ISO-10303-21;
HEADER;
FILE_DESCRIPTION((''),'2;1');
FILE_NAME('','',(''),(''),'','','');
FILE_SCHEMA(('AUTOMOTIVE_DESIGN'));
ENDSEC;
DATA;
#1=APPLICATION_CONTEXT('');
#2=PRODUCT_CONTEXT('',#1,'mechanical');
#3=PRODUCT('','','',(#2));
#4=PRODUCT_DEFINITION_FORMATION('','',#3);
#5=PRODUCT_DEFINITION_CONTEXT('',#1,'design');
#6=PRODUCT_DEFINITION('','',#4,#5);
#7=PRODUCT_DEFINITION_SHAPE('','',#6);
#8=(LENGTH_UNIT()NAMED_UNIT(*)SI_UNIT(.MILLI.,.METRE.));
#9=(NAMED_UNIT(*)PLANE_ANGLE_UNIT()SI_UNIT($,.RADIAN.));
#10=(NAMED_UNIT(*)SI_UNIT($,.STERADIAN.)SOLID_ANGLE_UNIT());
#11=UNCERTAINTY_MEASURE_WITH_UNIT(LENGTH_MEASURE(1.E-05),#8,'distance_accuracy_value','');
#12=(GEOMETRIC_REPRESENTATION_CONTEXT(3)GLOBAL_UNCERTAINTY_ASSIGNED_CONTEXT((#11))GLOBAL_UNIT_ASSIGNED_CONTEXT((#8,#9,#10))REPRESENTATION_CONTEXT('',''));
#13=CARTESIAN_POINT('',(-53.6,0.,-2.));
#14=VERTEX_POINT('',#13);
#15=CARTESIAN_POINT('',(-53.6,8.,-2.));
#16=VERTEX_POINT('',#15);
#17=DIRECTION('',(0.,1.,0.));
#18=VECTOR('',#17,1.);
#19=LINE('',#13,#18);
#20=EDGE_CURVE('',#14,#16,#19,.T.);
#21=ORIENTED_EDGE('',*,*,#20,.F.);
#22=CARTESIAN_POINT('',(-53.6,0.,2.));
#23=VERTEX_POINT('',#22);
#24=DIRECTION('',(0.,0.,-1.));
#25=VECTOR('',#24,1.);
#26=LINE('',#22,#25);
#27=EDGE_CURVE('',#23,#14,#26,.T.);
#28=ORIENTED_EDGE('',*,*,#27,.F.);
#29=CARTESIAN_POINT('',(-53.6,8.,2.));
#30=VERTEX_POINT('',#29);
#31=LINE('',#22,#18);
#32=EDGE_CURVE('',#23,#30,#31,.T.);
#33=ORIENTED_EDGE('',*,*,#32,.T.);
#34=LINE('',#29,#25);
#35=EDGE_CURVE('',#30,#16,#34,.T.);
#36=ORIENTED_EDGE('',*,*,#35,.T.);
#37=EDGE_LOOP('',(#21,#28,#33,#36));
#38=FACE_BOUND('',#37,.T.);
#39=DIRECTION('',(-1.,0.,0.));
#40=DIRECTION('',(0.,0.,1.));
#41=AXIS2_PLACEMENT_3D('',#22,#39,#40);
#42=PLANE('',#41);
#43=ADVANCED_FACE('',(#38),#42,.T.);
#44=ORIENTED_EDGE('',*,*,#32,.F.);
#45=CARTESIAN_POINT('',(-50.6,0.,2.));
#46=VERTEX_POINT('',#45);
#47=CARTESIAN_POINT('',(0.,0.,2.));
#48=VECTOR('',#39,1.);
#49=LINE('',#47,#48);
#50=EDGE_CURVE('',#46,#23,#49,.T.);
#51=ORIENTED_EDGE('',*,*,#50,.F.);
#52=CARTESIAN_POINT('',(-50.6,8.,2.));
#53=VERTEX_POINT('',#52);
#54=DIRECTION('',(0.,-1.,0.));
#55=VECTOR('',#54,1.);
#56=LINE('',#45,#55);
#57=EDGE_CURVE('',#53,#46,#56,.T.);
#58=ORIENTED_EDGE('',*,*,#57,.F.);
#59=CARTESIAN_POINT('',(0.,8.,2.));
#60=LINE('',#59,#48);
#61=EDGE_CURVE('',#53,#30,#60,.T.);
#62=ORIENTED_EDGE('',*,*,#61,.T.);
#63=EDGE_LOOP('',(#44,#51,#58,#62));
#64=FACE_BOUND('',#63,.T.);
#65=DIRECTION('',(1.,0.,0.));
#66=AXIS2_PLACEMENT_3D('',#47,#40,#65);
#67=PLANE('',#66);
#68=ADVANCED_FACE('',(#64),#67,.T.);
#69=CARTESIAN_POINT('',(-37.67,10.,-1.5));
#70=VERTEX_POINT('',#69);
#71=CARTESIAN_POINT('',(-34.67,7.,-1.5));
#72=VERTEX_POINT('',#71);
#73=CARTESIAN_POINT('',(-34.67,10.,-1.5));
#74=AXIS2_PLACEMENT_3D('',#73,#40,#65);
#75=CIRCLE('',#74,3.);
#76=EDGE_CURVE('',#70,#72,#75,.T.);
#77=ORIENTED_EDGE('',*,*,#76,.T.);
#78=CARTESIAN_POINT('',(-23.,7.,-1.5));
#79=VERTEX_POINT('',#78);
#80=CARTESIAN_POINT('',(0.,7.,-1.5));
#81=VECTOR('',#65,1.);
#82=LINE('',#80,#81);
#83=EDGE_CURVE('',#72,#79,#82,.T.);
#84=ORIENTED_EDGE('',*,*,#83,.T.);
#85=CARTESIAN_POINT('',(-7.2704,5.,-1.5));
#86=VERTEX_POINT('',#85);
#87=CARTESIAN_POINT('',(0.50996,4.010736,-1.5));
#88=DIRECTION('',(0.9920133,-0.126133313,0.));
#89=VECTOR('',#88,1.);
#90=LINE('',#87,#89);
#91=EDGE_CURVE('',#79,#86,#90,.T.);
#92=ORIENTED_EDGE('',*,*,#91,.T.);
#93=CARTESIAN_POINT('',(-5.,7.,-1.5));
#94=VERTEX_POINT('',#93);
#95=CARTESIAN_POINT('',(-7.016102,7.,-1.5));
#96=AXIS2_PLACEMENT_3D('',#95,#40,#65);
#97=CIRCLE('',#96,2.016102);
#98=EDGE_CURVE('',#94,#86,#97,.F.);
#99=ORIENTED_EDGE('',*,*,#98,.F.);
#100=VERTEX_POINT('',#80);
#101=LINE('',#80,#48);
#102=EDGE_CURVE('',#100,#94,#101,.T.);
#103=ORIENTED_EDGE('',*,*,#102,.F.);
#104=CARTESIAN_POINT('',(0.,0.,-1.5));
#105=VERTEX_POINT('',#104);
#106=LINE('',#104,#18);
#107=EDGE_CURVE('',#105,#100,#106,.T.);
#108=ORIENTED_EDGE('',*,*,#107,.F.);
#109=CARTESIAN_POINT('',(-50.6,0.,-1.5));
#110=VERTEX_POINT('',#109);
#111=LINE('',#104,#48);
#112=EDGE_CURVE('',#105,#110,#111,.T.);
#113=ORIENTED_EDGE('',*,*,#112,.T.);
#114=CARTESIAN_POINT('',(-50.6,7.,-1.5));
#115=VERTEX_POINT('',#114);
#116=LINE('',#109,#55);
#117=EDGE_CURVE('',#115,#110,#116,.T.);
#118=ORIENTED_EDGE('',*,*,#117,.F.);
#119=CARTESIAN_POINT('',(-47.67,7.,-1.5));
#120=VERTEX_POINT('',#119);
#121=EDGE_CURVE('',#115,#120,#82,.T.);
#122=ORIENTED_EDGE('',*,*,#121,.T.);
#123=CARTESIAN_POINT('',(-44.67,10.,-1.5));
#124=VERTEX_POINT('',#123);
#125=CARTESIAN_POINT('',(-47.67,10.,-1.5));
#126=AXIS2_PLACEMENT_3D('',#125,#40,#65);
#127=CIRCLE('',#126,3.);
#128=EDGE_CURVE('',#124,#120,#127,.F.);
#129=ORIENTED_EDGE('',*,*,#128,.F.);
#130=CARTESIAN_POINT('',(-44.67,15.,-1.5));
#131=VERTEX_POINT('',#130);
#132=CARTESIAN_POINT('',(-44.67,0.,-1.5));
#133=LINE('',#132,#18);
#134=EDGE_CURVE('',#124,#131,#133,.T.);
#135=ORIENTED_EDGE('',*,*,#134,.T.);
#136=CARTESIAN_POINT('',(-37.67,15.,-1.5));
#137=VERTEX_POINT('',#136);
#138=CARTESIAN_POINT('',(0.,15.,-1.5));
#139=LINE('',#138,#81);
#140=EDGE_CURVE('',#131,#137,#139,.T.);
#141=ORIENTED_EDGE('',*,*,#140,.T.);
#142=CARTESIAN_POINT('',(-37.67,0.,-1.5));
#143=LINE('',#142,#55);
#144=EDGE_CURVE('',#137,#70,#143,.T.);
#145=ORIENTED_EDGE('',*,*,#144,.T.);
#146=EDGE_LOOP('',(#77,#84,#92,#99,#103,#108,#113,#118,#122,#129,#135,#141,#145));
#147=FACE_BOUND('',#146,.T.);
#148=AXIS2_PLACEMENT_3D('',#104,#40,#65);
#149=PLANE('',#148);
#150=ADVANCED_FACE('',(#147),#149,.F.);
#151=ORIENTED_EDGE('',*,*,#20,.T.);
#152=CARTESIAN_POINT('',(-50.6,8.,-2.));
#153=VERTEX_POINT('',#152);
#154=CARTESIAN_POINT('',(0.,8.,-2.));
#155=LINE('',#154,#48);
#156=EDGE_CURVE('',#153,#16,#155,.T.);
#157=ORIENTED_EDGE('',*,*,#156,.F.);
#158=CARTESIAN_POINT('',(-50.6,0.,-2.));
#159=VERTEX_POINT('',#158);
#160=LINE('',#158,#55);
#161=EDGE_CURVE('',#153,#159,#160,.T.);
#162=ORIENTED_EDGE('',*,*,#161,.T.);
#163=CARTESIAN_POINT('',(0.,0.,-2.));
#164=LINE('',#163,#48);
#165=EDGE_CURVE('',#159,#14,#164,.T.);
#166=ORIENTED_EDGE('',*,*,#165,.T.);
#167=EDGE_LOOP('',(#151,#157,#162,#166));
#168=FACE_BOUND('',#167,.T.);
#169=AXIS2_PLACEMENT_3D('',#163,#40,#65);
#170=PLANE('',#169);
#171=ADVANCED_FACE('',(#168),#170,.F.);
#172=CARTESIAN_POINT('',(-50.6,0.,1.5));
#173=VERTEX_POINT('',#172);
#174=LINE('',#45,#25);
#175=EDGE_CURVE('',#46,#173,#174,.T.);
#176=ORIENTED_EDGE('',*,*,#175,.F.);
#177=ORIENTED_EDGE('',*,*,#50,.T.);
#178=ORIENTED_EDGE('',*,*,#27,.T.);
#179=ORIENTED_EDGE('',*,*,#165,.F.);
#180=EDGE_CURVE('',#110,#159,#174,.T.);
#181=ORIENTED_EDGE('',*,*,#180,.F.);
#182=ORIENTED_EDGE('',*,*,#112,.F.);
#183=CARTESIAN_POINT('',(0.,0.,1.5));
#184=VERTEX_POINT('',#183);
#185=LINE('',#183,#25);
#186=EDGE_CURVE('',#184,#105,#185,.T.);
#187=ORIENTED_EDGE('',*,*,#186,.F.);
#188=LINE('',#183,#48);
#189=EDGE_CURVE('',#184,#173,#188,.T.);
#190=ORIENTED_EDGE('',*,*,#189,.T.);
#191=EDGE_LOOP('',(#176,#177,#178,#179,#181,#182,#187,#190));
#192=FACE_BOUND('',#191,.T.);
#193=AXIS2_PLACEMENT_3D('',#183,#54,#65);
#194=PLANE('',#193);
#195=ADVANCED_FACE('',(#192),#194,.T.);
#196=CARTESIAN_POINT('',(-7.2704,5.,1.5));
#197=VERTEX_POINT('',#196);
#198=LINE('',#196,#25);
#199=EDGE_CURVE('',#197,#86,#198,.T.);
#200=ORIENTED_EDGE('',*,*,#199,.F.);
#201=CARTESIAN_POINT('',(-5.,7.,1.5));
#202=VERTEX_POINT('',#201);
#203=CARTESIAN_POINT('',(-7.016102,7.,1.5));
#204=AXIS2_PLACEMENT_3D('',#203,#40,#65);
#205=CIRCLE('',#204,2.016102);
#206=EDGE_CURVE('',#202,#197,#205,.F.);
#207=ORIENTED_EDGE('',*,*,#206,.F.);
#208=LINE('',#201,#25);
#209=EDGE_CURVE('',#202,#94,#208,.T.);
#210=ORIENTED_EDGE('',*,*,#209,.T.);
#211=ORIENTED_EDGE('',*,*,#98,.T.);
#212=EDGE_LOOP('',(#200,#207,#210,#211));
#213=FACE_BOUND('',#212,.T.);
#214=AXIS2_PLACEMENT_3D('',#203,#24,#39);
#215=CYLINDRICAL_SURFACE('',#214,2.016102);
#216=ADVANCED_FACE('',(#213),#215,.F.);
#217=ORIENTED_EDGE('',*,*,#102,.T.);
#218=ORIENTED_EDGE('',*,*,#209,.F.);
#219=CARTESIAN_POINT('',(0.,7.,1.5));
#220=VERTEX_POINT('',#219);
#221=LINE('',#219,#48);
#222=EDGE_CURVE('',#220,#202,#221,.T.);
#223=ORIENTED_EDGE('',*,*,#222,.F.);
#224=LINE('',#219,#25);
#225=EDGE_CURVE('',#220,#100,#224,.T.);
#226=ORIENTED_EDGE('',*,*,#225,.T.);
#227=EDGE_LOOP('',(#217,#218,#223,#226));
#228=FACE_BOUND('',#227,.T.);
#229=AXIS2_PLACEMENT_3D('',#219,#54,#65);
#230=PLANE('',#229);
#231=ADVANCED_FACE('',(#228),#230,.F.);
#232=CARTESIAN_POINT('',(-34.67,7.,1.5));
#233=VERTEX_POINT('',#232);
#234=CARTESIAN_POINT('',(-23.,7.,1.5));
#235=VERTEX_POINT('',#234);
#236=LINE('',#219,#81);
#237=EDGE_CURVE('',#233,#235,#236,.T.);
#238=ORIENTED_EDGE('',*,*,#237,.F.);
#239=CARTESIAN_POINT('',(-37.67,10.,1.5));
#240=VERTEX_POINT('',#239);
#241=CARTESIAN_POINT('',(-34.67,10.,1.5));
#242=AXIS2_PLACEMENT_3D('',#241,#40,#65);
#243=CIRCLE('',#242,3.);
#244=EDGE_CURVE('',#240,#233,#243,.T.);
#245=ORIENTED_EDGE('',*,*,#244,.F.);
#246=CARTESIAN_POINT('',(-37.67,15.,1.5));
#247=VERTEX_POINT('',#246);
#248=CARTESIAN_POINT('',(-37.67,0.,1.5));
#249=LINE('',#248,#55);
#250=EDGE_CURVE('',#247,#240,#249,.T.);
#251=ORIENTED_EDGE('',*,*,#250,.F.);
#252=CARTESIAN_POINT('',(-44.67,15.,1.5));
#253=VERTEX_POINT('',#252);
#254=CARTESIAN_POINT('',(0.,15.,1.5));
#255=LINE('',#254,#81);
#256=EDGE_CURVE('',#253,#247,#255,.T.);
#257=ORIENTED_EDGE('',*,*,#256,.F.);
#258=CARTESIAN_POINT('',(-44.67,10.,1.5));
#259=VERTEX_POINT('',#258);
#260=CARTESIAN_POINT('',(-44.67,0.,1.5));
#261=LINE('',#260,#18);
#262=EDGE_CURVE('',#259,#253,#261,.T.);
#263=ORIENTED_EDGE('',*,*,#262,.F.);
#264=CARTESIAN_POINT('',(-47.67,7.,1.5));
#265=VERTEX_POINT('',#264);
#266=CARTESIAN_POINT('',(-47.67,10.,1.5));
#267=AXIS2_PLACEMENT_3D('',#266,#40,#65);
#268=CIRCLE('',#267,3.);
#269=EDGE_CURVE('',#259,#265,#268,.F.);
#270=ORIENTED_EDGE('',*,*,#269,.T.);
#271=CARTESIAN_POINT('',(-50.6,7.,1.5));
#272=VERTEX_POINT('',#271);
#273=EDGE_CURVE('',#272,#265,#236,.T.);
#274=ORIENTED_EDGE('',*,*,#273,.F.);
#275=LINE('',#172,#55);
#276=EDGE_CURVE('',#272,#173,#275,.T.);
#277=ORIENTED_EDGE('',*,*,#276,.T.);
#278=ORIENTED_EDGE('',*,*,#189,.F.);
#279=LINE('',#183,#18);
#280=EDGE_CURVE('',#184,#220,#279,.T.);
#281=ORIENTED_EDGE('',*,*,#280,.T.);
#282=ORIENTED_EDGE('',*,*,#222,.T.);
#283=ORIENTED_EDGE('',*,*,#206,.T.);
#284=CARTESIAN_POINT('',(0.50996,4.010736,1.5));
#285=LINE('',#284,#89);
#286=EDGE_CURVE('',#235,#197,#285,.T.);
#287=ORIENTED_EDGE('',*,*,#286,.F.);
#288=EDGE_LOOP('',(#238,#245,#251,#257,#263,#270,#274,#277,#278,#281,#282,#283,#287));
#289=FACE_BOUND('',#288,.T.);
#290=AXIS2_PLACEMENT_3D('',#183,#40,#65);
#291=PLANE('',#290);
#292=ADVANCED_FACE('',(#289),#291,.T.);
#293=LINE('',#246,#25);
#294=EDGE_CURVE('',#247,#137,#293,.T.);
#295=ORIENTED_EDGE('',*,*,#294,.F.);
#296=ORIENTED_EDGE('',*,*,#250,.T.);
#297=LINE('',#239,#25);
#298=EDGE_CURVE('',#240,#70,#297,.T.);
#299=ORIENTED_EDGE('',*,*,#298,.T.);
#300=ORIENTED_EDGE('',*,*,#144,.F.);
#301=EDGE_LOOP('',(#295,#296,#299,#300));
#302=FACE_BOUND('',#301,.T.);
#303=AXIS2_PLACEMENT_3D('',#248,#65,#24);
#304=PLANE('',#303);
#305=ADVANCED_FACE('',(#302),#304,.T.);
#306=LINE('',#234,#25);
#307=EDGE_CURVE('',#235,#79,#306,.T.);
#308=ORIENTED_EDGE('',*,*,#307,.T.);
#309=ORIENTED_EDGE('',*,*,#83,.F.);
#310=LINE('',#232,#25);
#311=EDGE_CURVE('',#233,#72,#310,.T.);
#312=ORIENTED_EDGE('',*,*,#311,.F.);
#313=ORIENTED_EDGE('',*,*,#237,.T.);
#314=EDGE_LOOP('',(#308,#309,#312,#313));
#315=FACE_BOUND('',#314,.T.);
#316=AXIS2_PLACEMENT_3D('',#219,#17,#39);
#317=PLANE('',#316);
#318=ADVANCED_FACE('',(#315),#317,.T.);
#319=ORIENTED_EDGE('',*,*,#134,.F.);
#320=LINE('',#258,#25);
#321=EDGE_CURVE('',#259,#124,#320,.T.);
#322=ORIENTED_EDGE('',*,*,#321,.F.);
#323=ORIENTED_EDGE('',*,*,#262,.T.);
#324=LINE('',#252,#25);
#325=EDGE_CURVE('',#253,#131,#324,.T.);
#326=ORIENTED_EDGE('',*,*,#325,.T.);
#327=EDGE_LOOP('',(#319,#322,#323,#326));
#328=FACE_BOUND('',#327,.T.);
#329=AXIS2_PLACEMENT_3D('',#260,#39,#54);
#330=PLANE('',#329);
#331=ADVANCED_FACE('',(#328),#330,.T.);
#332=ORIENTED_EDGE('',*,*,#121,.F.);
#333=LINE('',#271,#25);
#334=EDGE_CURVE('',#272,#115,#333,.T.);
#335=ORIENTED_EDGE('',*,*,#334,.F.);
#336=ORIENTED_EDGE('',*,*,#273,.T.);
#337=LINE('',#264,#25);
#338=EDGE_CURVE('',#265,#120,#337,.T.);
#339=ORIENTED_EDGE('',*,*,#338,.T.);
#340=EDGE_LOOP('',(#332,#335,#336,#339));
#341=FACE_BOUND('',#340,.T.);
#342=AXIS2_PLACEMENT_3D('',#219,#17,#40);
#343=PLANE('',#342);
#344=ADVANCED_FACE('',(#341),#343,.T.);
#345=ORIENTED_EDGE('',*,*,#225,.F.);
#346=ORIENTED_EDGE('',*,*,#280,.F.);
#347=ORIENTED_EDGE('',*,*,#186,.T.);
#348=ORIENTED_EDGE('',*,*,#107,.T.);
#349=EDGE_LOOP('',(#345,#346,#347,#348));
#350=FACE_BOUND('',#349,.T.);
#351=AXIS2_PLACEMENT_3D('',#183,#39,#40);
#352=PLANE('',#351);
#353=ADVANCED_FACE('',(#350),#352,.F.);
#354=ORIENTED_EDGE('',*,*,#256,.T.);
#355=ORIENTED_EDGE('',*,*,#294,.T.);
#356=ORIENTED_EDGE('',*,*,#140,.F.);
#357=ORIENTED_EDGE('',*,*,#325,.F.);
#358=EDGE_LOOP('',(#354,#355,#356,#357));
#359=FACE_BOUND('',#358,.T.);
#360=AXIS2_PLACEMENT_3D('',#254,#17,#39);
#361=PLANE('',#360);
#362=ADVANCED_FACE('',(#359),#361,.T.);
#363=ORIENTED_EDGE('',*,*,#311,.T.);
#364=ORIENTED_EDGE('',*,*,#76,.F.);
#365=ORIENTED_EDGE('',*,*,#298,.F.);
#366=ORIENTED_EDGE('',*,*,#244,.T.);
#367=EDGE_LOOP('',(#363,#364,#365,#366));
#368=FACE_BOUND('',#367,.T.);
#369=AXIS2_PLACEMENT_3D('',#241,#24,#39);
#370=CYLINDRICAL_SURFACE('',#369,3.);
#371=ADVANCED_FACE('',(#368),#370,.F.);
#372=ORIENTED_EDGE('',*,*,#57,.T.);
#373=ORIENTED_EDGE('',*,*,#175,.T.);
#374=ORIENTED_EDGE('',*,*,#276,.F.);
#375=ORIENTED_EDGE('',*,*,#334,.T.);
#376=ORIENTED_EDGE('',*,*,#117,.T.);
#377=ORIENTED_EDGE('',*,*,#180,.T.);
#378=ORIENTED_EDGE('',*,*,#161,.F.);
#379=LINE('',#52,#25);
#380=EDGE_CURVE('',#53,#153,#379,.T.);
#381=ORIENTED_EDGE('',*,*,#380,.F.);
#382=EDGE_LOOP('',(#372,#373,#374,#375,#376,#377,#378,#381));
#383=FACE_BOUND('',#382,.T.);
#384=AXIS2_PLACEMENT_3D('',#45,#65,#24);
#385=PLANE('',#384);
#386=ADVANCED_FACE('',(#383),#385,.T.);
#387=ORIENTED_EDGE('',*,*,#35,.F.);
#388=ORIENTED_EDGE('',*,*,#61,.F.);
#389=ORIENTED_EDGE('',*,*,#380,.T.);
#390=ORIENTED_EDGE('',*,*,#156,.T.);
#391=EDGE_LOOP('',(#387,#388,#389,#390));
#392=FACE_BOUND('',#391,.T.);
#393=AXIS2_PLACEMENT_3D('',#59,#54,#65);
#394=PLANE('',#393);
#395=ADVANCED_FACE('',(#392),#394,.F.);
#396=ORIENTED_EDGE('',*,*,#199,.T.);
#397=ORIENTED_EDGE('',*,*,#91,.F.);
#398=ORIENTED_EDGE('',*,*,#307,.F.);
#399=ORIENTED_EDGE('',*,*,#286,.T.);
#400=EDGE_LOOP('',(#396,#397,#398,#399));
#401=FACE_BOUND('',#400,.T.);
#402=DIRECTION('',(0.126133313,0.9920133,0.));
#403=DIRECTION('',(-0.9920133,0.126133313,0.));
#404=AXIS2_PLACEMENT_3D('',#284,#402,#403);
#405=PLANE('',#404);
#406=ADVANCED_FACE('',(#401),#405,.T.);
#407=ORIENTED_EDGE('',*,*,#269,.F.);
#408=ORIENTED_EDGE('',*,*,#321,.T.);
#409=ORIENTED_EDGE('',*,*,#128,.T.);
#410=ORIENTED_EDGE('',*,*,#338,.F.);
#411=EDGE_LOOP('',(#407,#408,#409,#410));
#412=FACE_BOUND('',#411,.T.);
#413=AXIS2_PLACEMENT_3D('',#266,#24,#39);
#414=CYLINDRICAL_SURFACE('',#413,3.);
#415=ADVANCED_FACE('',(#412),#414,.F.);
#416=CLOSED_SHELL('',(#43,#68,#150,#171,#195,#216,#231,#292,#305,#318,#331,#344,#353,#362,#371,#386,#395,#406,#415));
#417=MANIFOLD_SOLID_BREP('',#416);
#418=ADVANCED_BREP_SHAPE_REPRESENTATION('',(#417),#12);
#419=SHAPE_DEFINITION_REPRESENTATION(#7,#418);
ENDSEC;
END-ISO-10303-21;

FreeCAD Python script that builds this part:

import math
import FreeCAD as App
import Part
import Sketcher
from FreeCAD import Vector
Q = App.Units.Quantity

doc = App.newDocument("Part")
body = doc.addObject("PartDesign::Body", "Body")

sketch1 = body.newObject("Sketcher::SketchObject", "Sketch")
sketch1.AttachmentSupport = (doc.getObject("XY_Plane"), [""])
sketch1.MapMode = "FlatFace"
sketch1.addGeometry([
    Part.LineSegment(Vector(0, 7, 0), Vector(-5, 7, 0)),
    Part.ArcOfCircle(Part.Circle(Vector(-7, 7, 0), Vector(0, 0, 1), 2), math.radians(-97), math.radians(0)),
    Part.LineSegment(Vector(-7.3, 5, 0), Vector(-23, 7, 0)),
    Part.LineSegment(Vector(-23, 7, 0), Vector(-34.7, 7, 0)),
    Part.ArcOfCircle(Part.Circle(Vector(-34.7, 10, 0), Vector(0, 0, 1), 3), math.radians(180), math.radians(270)),
    Part.LineSegment(Vector(-37.7, 10, 0), Vector(-37.7, 15, 0)),
    Part.LineSegment(Vector(-37.7, 15, 0), Vector(-44.7, 15, 0)),
    Part.LineSegment(Vector(-44.7, 15, 0), Vector(-44.7, 10, 0)),
    Part.ArcOfCircle(Part.Circle(Vector(-47.7, 10, 0), Vector(0, 0, 1), 3), math.radians(-90), math.radians(0)),
    Part.LineSegment(Vector(-47.7, 7, 0), Vector(-50.6, 7, 0)),
    Part.LineSegment(Vector(-50.6, 7, 0), Vector(-50.6, 0, 0)),
    Part.LineSegment(Vector(-50.6, 0, 0), Vector(0, 0, 0)),
    Part.LineSegment(Vector(0, 0, 0), Vector(0, 7, 0)),
], False)
sketch1.addConstraint([
    Sketcher.Constraint("Coincident", 0, 2, 1, 2),
    Sketcher.Constraint("Tangent", 1, 1, 2, 1),
    Sketcher.Constraint("Coincident", 2, 2, 3, 1),
    Sketcher.Constraint("Tangent", 3, 2, 4, 2),
    Sketcher.Constraint("Tangent", 4, 1, 5, 1),
    Sketcher.Constraint("Coincident", 5, 2, 6, 1),
    Sketcher.Constraint("Coincident", 6, 2, 7, 1),
    Sketcher.Constraint("Tangent", 7, 2, 8, 2),
    Sketcher.Constraint("Tangent", 8, 1, 9, 1),
    Sketcher.Constraint("Coincident", 9, 2, 10, 1),
    Sketcher.Constraint("Coincident", 10, 2, 11, 1),
    Sketcher.Constraint("Coincident", 11, 2, 12, 1),
    Sketcher.Constraint("Coincident", 12, 2, 0, 1),
    Sketcher.Constraint("Horizontal", 0),
    Sketcher.Constraint("Horizontal", 3),
    Sketcher.Constraint("Vertical", 5),
    Sketcher.Constraint("Horizontal", 6),
    Sketcher.Constraint("Vertical", 7),
    Sketcher.Constraint("Horizontal", 9),
    Sketcher.Constraint("Vertical", 10),
    Sketcher.Constraint("Horizontal", 11),
    Sketcher.Constraint("Vertical", 12),
    Sketcher.Constraint("Coincident", 11, 2, -1, 1),
    Sketcher.Constraint("Equal", 4, 8),
    Sketcher.Constraint("Horizontal", 4, 3, 8, 3),
    Sketcher.Constraint("Horizontal", 1, 3, 0, 2),
    Sketcher.Constraint("Horizontal", 0, 2, 2, 2),
    Sketcher.Constraint("Equal", 0, 5),
    Sketcher.Constraint("Equal", 6, 10),
    Sketcher.Constraint("Radius", 4, Q("3 mm")),
    Sketcher.Constraint("DistanceX", 0, 2, 0, 1, Q("5 mm")),
    Sketcher.Constraint("DistanceX", 6, 2, 6, 1, Q("7 mm")),
    Sketcher.Constraint("DistanceX", 11, 1, 11, 2, Q("50.6 mm")),
    Sketcher.Constraint("DistanceY", -1, 1, 1, 1, Q("5 mm")),
    Sketcher.Constraint("DistanceX", 2, 2, -1, 1, Q("23 mm")),
    Sketcher.Constraint("DistanceX", 3, 2, 3, 1, Q("11.67 mm")),
])
pad1 = body.newObject("PartDesign::Pad", "Pad")
pad1.Profile = sketch1
pad1.Length = 3
pad1.Midplane = True

sketch2 = body.newObject("Sketcher::SketchObject", "Sketch001")
sketch2.AttachmentSupport = (doc.getObject("XY_Plane"), [""])
sketch2.MapMode = "FlatFace"
sketch2.addGeometry([
    Part.LineSegment(Vector(-53.6, 0, 0), Vector(-50.6, 0, 0)),
    Part.LineSegment(Vector(-50.6, 0, 0), Vector(-50.6, 8, 0)),
    Part.LineSegment(Vector(-50.6, 8, 0), Vector(-53.6, 8, 0)),
    Part.LineSegment(Vector(-53.6, 8, 0), Vector(-53.6, 0, 0)),
], False)
sketch2.addConstraint([
    Sketcher.Constraint("Coincident", 0, 2, 1, 1),
    Sketcher.Constraint("Coincident", 1, 2, 2, 1),
    Sketcher.Constraint("Coincident", 2, 2, 3, 1),
    Sketcher.Constraint("Coincident", 3, 2, 0, 1),
    Sketcher.Constraint("Horizontal", 0),
    Sketcher.Constraint("Vertical", 1),
    Sketcher.Constraint("Horizontal", 2),
    Sketcher.Constraint("Vertical", 3),
    Sketcher.Constraint("PointOnObject", 0, 2, -1),
    Sketcher.Constraint("DistanceX", 0, 1, 0, 2, Q("3 mm")),
    Sketcher.Constraint("DistanceY", 1, 1, 1, 2, Q("8 mm")),
    Sketcher.Constraint("DistanceX", 0, 2, -1, 1, Q("50.6 mm")),
])
pad2 = body.newObject("PartDesign::Pad", "Pad001")
pad2.Profile = sketch2
pad2.Length = 4
pad2.Midplane = True

doc.recompute()
